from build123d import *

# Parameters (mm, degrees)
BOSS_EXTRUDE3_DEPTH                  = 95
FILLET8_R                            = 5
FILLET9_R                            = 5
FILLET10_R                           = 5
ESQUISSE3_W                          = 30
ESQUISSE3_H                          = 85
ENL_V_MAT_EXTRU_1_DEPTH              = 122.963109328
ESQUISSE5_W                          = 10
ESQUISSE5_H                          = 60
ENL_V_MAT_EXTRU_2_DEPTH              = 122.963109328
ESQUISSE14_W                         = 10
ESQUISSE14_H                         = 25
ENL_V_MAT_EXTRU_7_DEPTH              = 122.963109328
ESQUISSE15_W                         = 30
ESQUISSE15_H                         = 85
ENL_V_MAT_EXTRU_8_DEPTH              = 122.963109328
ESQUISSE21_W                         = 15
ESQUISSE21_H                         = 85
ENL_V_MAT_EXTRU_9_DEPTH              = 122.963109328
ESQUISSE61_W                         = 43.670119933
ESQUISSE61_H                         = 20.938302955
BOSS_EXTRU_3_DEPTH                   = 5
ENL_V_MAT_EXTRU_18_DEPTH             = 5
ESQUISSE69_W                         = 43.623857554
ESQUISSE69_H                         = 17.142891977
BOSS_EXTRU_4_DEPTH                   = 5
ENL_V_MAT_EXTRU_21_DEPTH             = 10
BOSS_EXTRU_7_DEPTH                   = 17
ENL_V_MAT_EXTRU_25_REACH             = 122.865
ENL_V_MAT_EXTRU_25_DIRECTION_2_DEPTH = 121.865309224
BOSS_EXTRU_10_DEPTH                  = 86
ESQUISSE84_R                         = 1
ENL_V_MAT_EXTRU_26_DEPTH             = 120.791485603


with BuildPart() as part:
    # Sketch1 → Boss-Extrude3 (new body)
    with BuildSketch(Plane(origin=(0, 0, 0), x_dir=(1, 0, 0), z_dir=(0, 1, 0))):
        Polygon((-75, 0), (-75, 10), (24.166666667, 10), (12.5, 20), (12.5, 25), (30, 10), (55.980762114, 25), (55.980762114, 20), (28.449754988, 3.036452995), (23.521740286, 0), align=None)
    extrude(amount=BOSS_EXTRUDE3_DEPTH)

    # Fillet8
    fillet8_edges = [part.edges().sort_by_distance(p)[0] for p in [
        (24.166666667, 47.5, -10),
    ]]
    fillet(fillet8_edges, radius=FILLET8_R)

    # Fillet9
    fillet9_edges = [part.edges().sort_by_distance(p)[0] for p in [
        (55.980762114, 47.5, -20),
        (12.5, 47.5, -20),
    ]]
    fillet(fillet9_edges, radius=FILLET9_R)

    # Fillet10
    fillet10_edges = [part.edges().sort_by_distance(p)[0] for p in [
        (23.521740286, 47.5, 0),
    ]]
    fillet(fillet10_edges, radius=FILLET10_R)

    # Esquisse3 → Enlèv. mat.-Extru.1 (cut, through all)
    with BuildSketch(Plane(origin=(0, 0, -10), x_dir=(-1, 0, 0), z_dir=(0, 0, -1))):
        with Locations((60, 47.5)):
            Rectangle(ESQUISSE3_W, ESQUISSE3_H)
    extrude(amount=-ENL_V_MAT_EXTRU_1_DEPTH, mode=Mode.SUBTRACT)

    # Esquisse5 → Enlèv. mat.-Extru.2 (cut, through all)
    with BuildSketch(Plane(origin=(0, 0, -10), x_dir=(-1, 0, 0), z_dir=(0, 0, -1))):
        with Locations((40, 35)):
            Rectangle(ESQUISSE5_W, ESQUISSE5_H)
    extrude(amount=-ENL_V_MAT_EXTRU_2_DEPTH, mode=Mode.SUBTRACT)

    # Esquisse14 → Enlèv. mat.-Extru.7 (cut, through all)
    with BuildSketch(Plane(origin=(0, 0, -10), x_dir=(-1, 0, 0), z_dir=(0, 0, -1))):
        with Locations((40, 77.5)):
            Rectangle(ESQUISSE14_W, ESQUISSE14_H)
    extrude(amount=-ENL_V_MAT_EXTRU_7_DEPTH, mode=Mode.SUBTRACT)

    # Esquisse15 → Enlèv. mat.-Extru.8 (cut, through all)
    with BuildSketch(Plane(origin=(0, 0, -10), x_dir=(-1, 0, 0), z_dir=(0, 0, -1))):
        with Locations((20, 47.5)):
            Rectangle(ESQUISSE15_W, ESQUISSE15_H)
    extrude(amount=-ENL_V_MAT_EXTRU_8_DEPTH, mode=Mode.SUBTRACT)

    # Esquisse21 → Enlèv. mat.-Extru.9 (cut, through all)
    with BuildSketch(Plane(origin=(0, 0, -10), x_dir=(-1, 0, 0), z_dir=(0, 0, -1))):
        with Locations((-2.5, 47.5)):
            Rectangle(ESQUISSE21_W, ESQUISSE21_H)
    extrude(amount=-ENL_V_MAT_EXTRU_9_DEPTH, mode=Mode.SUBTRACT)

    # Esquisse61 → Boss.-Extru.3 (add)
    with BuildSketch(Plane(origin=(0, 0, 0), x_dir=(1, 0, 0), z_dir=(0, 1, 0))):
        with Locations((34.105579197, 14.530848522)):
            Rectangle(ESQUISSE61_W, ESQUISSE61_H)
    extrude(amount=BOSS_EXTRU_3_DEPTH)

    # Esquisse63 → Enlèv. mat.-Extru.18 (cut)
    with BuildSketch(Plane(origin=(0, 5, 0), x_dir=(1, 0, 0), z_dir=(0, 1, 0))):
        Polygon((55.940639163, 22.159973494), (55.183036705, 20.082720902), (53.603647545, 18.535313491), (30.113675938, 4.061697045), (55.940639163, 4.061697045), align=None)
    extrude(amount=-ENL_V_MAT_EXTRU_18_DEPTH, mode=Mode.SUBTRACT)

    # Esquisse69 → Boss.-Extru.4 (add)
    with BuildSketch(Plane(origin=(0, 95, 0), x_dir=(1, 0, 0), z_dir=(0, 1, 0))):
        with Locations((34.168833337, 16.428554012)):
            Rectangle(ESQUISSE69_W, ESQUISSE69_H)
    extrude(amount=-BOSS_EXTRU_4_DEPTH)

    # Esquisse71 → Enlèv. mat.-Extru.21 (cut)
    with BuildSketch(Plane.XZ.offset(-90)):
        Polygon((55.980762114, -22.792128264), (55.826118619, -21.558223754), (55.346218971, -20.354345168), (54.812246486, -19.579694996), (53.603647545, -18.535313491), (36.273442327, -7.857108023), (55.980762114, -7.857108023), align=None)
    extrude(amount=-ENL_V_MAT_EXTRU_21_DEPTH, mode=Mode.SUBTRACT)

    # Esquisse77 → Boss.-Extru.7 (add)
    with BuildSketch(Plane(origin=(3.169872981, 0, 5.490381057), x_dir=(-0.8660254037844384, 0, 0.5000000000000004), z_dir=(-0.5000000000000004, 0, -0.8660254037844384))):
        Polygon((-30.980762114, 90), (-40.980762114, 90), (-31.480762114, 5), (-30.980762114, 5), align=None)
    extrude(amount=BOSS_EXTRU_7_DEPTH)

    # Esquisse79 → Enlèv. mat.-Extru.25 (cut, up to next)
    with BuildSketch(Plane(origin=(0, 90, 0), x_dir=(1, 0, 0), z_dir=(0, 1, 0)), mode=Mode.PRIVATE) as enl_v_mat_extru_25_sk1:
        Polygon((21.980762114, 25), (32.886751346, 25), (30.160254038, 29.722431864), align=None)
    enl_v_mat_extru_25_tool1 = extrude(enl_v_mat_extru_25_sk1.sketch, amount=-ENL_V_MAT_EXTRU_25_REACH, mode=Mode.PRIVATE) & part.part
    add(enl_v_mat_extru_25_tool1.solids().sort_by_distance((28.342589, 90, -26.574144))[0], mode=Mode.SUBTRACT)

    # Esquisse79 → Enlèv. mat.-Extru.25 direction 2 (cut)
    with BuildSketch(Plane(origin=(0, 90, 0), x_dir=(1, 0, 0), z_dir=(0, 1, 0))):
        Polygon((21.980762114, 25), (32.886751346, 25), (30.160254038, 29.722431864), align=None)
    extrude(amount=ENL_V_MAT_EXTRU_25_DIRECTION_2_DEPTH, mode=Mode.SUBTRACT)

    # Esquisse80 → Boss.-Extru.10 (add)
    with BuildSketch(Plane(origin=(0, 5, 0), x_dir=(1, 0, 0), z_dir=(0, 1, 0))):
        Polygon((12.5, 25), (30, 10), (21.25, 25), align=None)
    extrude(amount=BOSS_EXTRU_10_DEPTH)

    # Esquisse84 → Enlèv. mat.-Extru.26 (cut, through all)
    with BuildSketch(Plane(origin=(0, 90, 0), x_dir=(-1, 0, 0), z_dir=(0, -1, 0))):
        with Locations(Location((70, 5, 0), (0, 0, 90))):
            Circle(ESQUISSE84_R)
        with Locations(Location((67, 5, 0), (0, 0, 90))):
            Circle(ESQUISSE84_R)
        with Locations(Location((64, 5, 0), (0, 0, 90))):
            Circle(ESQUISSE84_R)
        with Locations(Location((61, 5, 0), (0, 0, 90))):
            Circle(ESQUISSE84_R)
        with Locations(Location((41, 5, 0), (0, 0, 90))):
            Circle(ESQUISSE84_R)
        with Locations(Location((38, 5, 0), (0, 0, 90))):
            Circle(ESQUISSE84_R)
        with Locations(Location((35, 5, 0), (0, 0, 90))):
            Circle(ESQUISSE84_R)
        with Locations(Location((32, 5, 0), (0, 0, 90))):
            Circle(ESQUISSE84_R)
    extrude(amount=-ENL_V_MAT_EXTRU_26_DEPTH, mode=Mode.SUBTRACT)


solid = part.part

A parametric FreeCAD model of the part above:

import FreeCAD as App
import Part
import Sketcher

V = App.Vector
Q = App.Units.Quantity


def edges_at(feature, points):
    """Names of the edges that pass closest to the given points."""
    edges = feature.Shape.Edges
    near = lambda p: min(range(len(edges)), key=lambda i: edges[i].distToShape(Part.Vertex(*p))[0])
    return sorted({f"Edge{near(p) + 1}" for p in points})


def add_polygon(sketch, points):
    """Adds a closed chain of lines whose ends are joined by coincident constraints."""
    first, n = sketch.GeometryCount, len(points)
    for a, b in zip(points, points[1:] + points[:1]):
        sketch.addGeometry(Part.LineSegment(App.Vector(*a, 0), App.Vector(*b, 0)), False)
    for i in range(n):
        sketch.addConstraint(Sketcher.Constraint("Coincident", first + i, 2, first + (i + 1) % n, 1))

doc = App.newDocument("Part")
body = doc.addObject("PartDesign::Body", "Body")

sketch1 = body.newObject("Sketcher::SketchObject", "Sketch")
sketch1.AttachmentSupport = (doc.getObject("XZ_Plane"), [""])
sketch1.MapMode = "FlatFace"
add_polygon(sketch1, [(-75, -10), (-75, 0), (24, 0), (28, -3), (56, -20), (56, -25), (30, -10), (12, -25), (12, -20), (24, -10)])
sketch1.addConstraint([
    Sketcher.Constraint("Vertical", 0),
    Sketcher.Constraint("Horizontal", 1),
    Sketcher.Constraint("Vertical", 4),
    Sketcher.Constraint("Vertical", 7),
    Sketcher.Constraint("Horizontal", 9),
    Sketcher.Constraint("PointOnObject", 0, 2, -1),
    Sketcher.Constraint("Parallel", 2, 3),
    Sketcher.Constraint("Parallel", 6, 8),
    Sketcher.Constraint("Horizontal", 4, 2, 6, 2),
    Sketcher.Constraint("Horizontal", 3, 2, 7, 2),
    Sketcher.Constraint("Horizontal", 5, 2, 8, 2),
    Sketcher.Constraint("DistanceY", 0, 1, 0, 2, 10.0),
    Sketcher.Constraint("DistanceY", 4, 2, 4, 1, 5.0),
    Sketcher.Constraint("Angle", 5, Q("150 deg")),
    Sketcher.Constraint("Distance", 5, 30.0),
    Sketcher.Constraint("DistanceX", 0, 2, -1, 1, 75.0),
    Sketcher.Constraint("DistanceX", -1, 1, 5, 2, 30.0),
    Sketcher.Constraint("DistanceX", -1, 1, 6, 2, 12.5),
    Sketcher.Constraint("DistanceX", 1, 1, 1, 2, 98.52174),
    Sketcher.Constraint("DistanceX", 8, 2, 2, 2, 4.283088),
])
pad1 = body.newObject("PartDesign::Pad", "Pad")
pad1.Profile = sketch1
pad1.Length = 95
pad1.Reversed = True
doc.recompute()

fillet = body.newObject("PartDesign::Fillet", "Fillet")
fillet.Base = (pad1, edges_at(pad1, [(24.167, 47.5, -10)]))
fillet.Radius = 5
doc.recompute()

fillet2 = body.newObject("PartDesign::Fillet", "Fillet001")
fillet2.Base = (fillet, edges_at(fillet, [(55.981, 47.5, -20), (12.5, 47.5, -20)]))
fillet2.Radius = 5
doc.recompute()

fillet3 = body.newObject("PartDesign::Fillet", "Fillet002")
fillet3.Base = (fillet2, edges_at(fillet2, [(23.522, 47.5, 0)]))
fillet3.Radius = 5

sketch2 = body.newObject("Sketcher::SketchObject", "Sketch001")
sketch2.AttachmentSupport = (doc.getObject("XY_Plane"), [""])
sketch2.MapMode = "FlatFace"
sketch2.AttachmentOffset = App.Placement(V(0, 0, -10), App.Rotation())
add_polygon(sketch2, [(-45, 90), (-45, 5), (-75, 5), (-75, 90)])
sketch2.addConstraint([
    Sketcher.Constraint("Vertical", 0),
    Sketcher.Constraint("Horizontal", 1),
    Sketcher.Constraint("Vertical", 2),
    Sketcher.Constraint("Horizontal", 3),
    Sketcher.Constraint("DistanceX", 1, 2, 1, 1, 30.0),
    Sketcher.Constraint("DistanceY", 0, 2, 0, 1, 85.0),
    Sketcher.Constraint("DistanceX", 0, 2, -1, 1, 45.0),
    Sketcher.Constraint("DistanceY", -1, 1, 0, 2, 5.0),
])
pocket1 = body.newObject("PartDesign::Pocket", "Pocket")
pocket1.Profile = sketch2
pocket1.Type = "ThroughAll"
pocket1.Reversed = True

sketch3 = body.newObject("Sketcher::SketchObject", "Sketch002")
sketch3.AttachmentSupport = (doc.getObject("XY_Plane"), [""])
sketch3.MapMode = "FlatFace"
sketch3.AttachmentOffset = App.Placement(V(0, 0, -10), App.Rotation())
add_polygon(sketch3, [(-35, 65), (-35, 5), (-45, 5), (-45, 65)])
sketch3.addConstraint([
    Sketcher.Constraint("Vertical", 0),
    Sketcher.Constraint("Horizontal", 1),
    Sketcher.Constraint("Vertical", 2),
    Sketcher.Constraint("Horizontal", 3),
    Sketcher.Constraint("DistanceX", 1, 2, 1, 1, 10.0),
    Sketcher.Constraint("DistanceY", 0, 2, 0, 1, 60.0),
    Sketcher.Constraint("DistanceX", 0, 2, -1, 1, 35.0),
    Sketcher.Constraint("DistanceY", -1, 1, 0, 2, 5.0),
])
pocket2 = body.newObject("PartDesign::Pocket", "Pocket001")
pocket2.Profile = sketch3
pocket2.Type = "ThroughAll"
pocket2.Reversed = True

sketch4 = body.newObject("Sketcher::SketchObject", "Sketch003")
sketch4.AttachmentSupport = (doc.getObject("XY_Plane"), [""])
sketch4.MapMode = "FlatFace"
sketch4.AttachmentOffset = App.Placement(V(0, 0, -10), App.Rotation())
add_polygon(sketch4, [(-35, 90), (-35, 65), (-45, 65), (-45, 90)])
sketch4.addConstraint([
    Sketcher.Constraint("Vertical", 0),
    Sketcher.Constraint("Horizontal", 1),
    Sketcher.Constraint("Vertical", 2),
    Sketcher.Constraint("Horizontal", 3),
    Sketcher.Constraint("DistanceX", 1, 2, 1, 1, 10.0),
    Sketcher.Constraint("DistanceY", 0, 2, 0, 1, 25.0),
    Sketcher.Constraint("DistanceX", 0, 2, -1, 1, 35.0),
    Sketcher.Constraint("DistanceY", -1, 1, 0, 2, 65.0),
])
pocket3 = body.newObject("PartDesign::Pocket", "Pocket002")
pocket3.Profile = sketch4
pocket3.Type = "ThroughAll"
pocket3.Reversed = True

sketch5 = body.newObject("Sketcher::SketchObject", "Sketch004")
sketch5.AttachmentSupport = (doc.getObject("XY_Plane"), [""])
sketch5.MapMode = "FlatFace"
sketch5.AttachmentOffset = App.Placement(V(0, 0, -10), App.Rotation())
add_polygon(sketch5, [(-5, 90), (-5, 5), (-35, 5), (-35, 90)])
sketch5.addConstraint([
    Sketcher.Constraint("Vertical", 0),
    Sketcher.Constraint("Horizontal", 1),
    Sketcher.Constraint("Vertical", 2),
    Sketcher.Constraint("Horizontal", 3),
    Sketcher.Constraint("DistanceX", 1, 2, 1, 1, 30.0),
    Sketcher.Constraint("DistanceY", 0, 2, 0, 1, 85.0),
    Sketcher.Constraint("DistanceX", 0, 2, -1, 1, 5.0),
    Sketcher.Constraint("DistanceY", -1, 1, 0, 2, 5.0),
])
pocket4 = body.newObject("PartDesign::Pocket", "Pocket003")
pocket4.Profile = sketch5
pocket4.Type = "ThroughAll"
pocket4.Reversed = True

sketch6 = body.newObject("Sketcher::SketchObject", "Sketch005")
sketch6.AttachmentSupport = (doc.getObject("XY_Plane"), [""])
sketch6.MapMode = "FlatFace"
sketch6.AttachmentOffset = App.Placement(V(0, 0, -10), App.Rotation())
add_polygon(sketch6, [(10, 90), (10, 5), (-5, 5), (-5, 90)])
sketch6.addConstraint([
    Sketcher.Constraint("Vertical", 0),
    Sketcher.Constraint("Horizontal", 1),
    Sketcher.Constraint("Vertical", 2),
    Sketcher.Constraint("Horizontal", 3),
    Sketcher.Constraint("DistanceX", 1, 2, 1, 1, 15.0),
    Sketcher.Constraint("DistanceY", 0, 2, 0, 1, 85.0),
    Sketcher.Constraint("DistanceX", -1, 1, 0, 2, 10.0),
    Sketcher.Constraint("DistanceY", -1, 1, 0, 2, 5.0),
])
pocket5 = body.newObject("PartDesign::Pocket", "Pocket004")
pocket5.Profile = sketch6
pocket5.Type = "ThroughAll"
pocket5.Reversed = True

sketch7 = body.newObject("Sketcher::SketchObject", "Sketch006")
sketch7.AttachmentSupport = (doc.getObject("XZ_Plane"), [""])
sketch7.MapMode = "FlatFace"
add_polygon(sketch7, [(12, -25), (12, -4), (56, -4), (56, -25)])
sketch7.addConstraint([
    Sketcher.Constraint("Vertical", 0),
    Sketcher.Constraint("Horizontal", 1),
    Sketcher.Constraint("Vertical", 2),
    Sketcher.Constraint("Horizontal", 3),
    Sketcher.Constraint("DistanceY", 2, 2, -1, 1, 25.0),
    Sketcher.Constraint("DistanceX", 1, 1, 1, 2, 43.67012),
    Sketcher.Constraint("DistanceY", 0, 1, 0, 2, 20.938303),
    Sketcher.Constraint("DistanceX", -1, 1, 0, 2, 12.270519),
])
pad2 = body.newObject("PartDesign::Pad", "Pad001")
pad2.Profile = sketch7
pad2.Length = 5
pad2.Reversed = True

sketch8 = body.newObject("Sketcher::SketchObject", "Sketch007")
sketch8.AttachmentSupport = (doc.getObject("XZ_Plane"), [""])
sketch8.MapMode = "FlatFace"
sketch8.AttachmentOffset = App.Placement(V(0, 0, -5), App.Rotation())
add_polygon(sketch8, [(55.9, -22.2), (55.2, -20.1), (53.6, -18.5), (30.1, -4.1), (55.9, -4.1)])
sketch8.addConstraint([
    Sketcher.Constraint("Horizontal", 3),
    Sketcher.Constraint("Vertical", 4),
    Sketcher.Constraint("Equal", 0, 1),
    Sketcher.Constraint("Distance", 2, 27.591019),
    Sketcher.Constraint("DistanceX", 3, 1, 3, 2, 25.826963),
    Sketcher.Constraint("DistanceY", 4, 2, 4, 1, 18.098276),
    Sketcher.Constraint("DistanceY", 0, 2, -1, 1, 20.082721),
    Sketcher.Constraint("DistanceX", -1, 1, 3, 2, 55.940639),
    Sketcher.Constraint("DistanceX", 1, 2, 0, 2, 1.579389),
    Sketcher.Constraint("DistanceX", 2, 2, 1, 2, 23.489972),
])
pocket6 = body.newObject("PartDesign::Pocket", "Pocket005")
pocket6.Profile = sketch8
pocket6.Length = 5
pocket6.Reversed = True

sketch9 = body.newObject("Sketcher::SketchObject", "Sketch008")
sketch9.AttachmentSupport = (doc.getObject("XZ_Plane"), [""])
sketch9.MapMode = "FlatFace"
sketch9.AttachmentOffset = App.Placement(V(0, 0, -95), App.Rotation())
add_polygon(sketch9, [(12, -25), (12, -8), (56, -8), (56, -25)])
sketch9.addConstraint([
    Sketcher.Constraint("Vertical", 0),
    Sketcher.Constraint("Horizontal", 1),
    Sketcher.Constraint("Vertical", 2),
    Sketcher.Constraint("Horizontal", 3),
    Sketcher.Constraint("DistanceY", 2, 2, -1, 1, 25.0),
    Sketcher.Constraint("DistanceY", 0, 1, 0, 2, 17.142892),
    Sketcher.Constraint("DistanceX", 1, 1, 1, 2, 43.623858),
    Sketcher.Constraint("DistanceX", -1, 1, 0, 2, 12.356905),
])
pad3 = body.newObject("PartDesign::Pad", "Pad002")
pad3.Profile = sketch9
pad3.Length = 5

sketch10 = body.newObject("Sketcher::SketchObject", "Sketch009")
sketch10.AttachmentSupport = (doc.getObject("XZ_Plane"), [""])
sketch10.MapMode = "FlatFace"
sketch10.AttachmentOffset = App.Placement(V(0, 0, -90), App.Rotation())
add_polygon(sketch10, [(55.8, -21.6), (56, -22.8), (56, -7.9), (36.3, -7.9), (53.6, -18.5), (54.8, -19.6), (55.3, -20.4)])
sketch10.addConstraint([
    Sketcher.Constraint("Vertical", 1),
    Sketcher.Constraint("Horizontal", 2),
    Sketcher.Constraint("DistanceX", 2, 2, 2, 1, 19.70732),
    Sketcher.Constraint("DistanceY", 1, 1, 1, 2, 14.93502),
    Sketcher.Constraint("DistanceX", 3, 2, 4, 2, 1.208599),
    Sketcher.Constraint("DistanceX", 5, 2, 6, 2, 0.4799),
    Sketcher.Constraint("DistanceY", 0, 2, -1, 1, 22.792128),
    Sketcher.Constraint("DistanceX", -1, 1, 5, 2, 55.346219),
    Sketcher.Constraint("DistanceY", 4, 2, 3, 2, 1.044382),
    Sketcher.Constraint("DistanceY", 5, 2, 4, 2, 0.77465),
    Sketcher.Constraint("DistanceX", 3, 2, 5, 2, 1.742571),
    Sketcher.Constraint("DistanceY", 6, 2, 5, 2, 1.203879),
    Sketcher.Constraint("Distance", 0, 1.243557),
    Sketcher.Constraint("Distance", 3, 20.355837),
])
pocket7 = body.newObject("PartDesign::Pocket", "Pocket006")
pocket7.Profile = sketch10
pocket7.Length = 10

sketch11 = body.newObject("Sketcher::SketchObject", "Sketch010")
sketch11.Placement = App.Placement(V(3.169873, 0, 5.490381), App.Rotation(V(-0.866025404, 0, 0.5), V(0, 1, 0), V(-0.5, 0, -0.866025404), "ZXY"))
add_polygon(sketch11, [(-31, 90), (-41, 90), (-31.5, 5), (-31, 5)])
sketch11.addConstraint([
    Sketcher.Constraint("Horizontal", 0),
    Sketcher.Constraint("Horizontal", 2),
    Sketcher.Constraint("Vertical", 3),
    Sketcher.Constraint("DistanceX", 0, 2, 0, 1, 10.0),
    Sketcher.Constraint("DistanceY", 3, 1, 3, 2, 85.0),
    Sketcher.Constraint("DistanceX", 2, 1, 2, 2, 0.5),
    Sketcher.Constraint("DistanceY", -1, 1, 0, 2, 90.0),
    Sketcher.Constraint("DistanceX", 0, 2, -1, 1, 40.980762),
])
pad4 = body.newObject("PartDesign::Pad", "Pad003")
pad4.Profile = sketch11
pad4.Length = 17

sketch12 = body.newObject("Sketcher::SketchObject", "Sketch011")
sketch12.AttachmentSupport = (doc.getObject("XZ_Plane"), [""])
sketch12.MapMode = "FlatFace"
sketch12.AttachmentOffset = App.Placement(V(0, 0, -90), App.Rotation())
add_polygon(sketch12, [(22, -25), (33, -25), (30, -30)])
sketch12.addConstraint([
    Sketcher.Constraint("Horizontal", 0),
    Sketcher.Constraint("Perpendicular", 1, 2),
    Sketcher.Constraint("Angle", 1, Q("-120 deg")),
    Sketcher.Constraint("DistanceY", 0, 2, -1, 1, 25.0),
    Sketcher.Constraint("DistanceX", 0, 1, 0, 2, 10.905989),
    Sketcher.Constraint("DistanceX", -1, 1, 0, 2, 32.886751),
])
pocket8 = body.newObject("PartDesign::Pocket", "Pocket007")
pocket8.Profile = sketch12
pocket8.Type = "UpToFirst"
pocket8.Reversed = True

sketch13 = body.newObject("Sketcher::SketchObject", "Sketch012")
sketch13.AttachmentSupport = (doc.getObject("XZ_Plane"), [""])
sketch13.MapMode = "FlatFace"
sketch13.AttachmentOffset = App.Placement(V(0, 0, -90), App.Rotation())
add_polygon(sketch13, [(22, -25), (33, -25), (30, -30)])
sketch13.addConstraint([
    Sketcher.Constraint("Horizontal", 0),
    Sketcher.Constraint("Perpendicular", 1, 2),
    Sketcher.Constraint("Angle", 1, Q("-120 deg")),
    Sketcher.Constraint("DistanceY", 0, 2, -1, 1, 25.0),
    Sketcher.Constraint("DistanceX", 0, 1, 0, 2, 10.905989),
    Sketcher.Constraint("DistanceX", -1, 1, 0, 2, 32.886751),
])
pocket9 = body.newObject("PartDesign::Pocket", "Pocket008")
pocket9.Profile = sketch13
pocket9.Length = 121.865309

sketch14 = body.newObject("Sketcher::SketchObject", "Sketch013")
sketch14.AttachmentSupport = (doc.getObject("XZ_Plane"), [""])
sketch14.MapMode = "FlatFace"
sketch14.AttachmentOffset = App.Placement(V(0, 0, -5), App.Rotation())
add_polygon(sketch14, [(12, -25), (30, -10), (21, -25)])
sketch14.addConstraint([
    Sketcher.Constraint("Horizontal", 2),
    Sketcher.Constraint("DistanceX", -1, 1, 0, 2, 30.0),
    Sketcher.Constraint("DistanceY", 0, 2, -1, 1, 10.0),
    Sketcher.Constraint("DistanceY", 1, 2, -1, 1, 25.0),
    Sketcher.Constraint("DistanceX", 2, 2, 2, 1, 8.75),
    Sketcher.Constraint("DistanceX", -1, 1, 2, 2, 12.5),
])
pad5 = body.newObject("PartDesign::Pad", "Pad004")
pad5.Profile = sketch14
pad5.Length = 86
pad5.Reversed = True

sketch15 = body.newObject("Sketcher::SketchObject", "Sketch014")
sketch15.AttachmentSupport = (doc.getObject("XZ_Plane"), [""])
sketch15.MapMode = "FlatFace"
sketch15.AttachmentOffset = App.Placement(V(0, 0, -90), App.Rotation())
sketch15.addGeometry([
    Part.Circle(V(-70, -5, 0), V(0, 0, 1), 1),
    Part.Circle(V(-67, -5, 0), V(0, 0, 1), 1),
    Part.Circle(V(-64, -5, 0), V(0, 0, 1), 1),
    Part.Circle(V(-61, -5, 0), V(0, 0, 1), 1),
    Part.Circle(V(-41, -5, 0), V(0, 0, 1), 1),
    Part.Circle(V(-38, -5, 0), V(0, 0, 1), 1),
    Part.Circle(V(-35, -5, 0), V(0, 0, 1), 1),
    Part.Circle(V(-32, -5, 0), V(0, 0, 1), 1),
], False)
sketch15.addConstraint([
    Sketcher.Constraint("Equal", 0, 1),
    Sketcher.Constraint("Equal", 1, 2),
    Sketcher.Constraint("Equal", 2, 3),
    Sketcher.Constraint("Equal", 3, 4),
    Sketcher.Constraint("Equal", 4, 5),
    Sketcher.Constraint("Equal", 5, 6),
    Sketcher.Constraint("Equal", 6, 7),
    Sketcher.Constraint("Horizontal", 0, 3, 1, 3),
    Sketcher.Constraint("Horizontal", 1, 3, 2, 3),
    Sketcher.Constraint("Horizontal", 2, 3, 3, 3),
    Sketcher.Constraint("Horizontal", 3, 3, 4, 3),
    Sketcher.Constraint("Horizontal", 4, 3, 5, 3),
    Sketcher.Constraint("Horizontal", 5, 3, 6, 3),
    Sketcher.Constraint("Horizontal", 6, 3, 7, 3),
    Sketcher.Constraint("Diameter", 0, 2.0),
    Sketcher.Constraint("DistanceX", 0, 3, -1, 1, 70.0),
    Sketcher.Constraint("DistanceY", 0, 3, -1, 1, 5.0),
    Sketcher.Constraint("DistanceX", 1, 3, -1, 1, 67.0),
    Sketcher.Constraint("DistanceX", 2, 3, -1, 1, 64.0),
    Sketcher.Constraint("DistanceX", 3, 3, -1, 1, 61.0),
    Sketcher.Constraint("DistanceX", 4, 3, -1, 1, 41.0),
    Sketcher.Constraint("DistanceX", 5, 3, -1, 1, 38.0),
    Sketcher.Constraint("DistanceX", 6, 3, -1, 1, 35.0),
    Sketcher.Constraint("DistanceX", 7, 3, -1, 1, 32.0),
])
pocket10 = body.newObject("PartDesign::Pocket", "Pocket009")
pocket10.Profile = sketch15
pocket10.Type = "ThroughAll"

doc.recompute()
